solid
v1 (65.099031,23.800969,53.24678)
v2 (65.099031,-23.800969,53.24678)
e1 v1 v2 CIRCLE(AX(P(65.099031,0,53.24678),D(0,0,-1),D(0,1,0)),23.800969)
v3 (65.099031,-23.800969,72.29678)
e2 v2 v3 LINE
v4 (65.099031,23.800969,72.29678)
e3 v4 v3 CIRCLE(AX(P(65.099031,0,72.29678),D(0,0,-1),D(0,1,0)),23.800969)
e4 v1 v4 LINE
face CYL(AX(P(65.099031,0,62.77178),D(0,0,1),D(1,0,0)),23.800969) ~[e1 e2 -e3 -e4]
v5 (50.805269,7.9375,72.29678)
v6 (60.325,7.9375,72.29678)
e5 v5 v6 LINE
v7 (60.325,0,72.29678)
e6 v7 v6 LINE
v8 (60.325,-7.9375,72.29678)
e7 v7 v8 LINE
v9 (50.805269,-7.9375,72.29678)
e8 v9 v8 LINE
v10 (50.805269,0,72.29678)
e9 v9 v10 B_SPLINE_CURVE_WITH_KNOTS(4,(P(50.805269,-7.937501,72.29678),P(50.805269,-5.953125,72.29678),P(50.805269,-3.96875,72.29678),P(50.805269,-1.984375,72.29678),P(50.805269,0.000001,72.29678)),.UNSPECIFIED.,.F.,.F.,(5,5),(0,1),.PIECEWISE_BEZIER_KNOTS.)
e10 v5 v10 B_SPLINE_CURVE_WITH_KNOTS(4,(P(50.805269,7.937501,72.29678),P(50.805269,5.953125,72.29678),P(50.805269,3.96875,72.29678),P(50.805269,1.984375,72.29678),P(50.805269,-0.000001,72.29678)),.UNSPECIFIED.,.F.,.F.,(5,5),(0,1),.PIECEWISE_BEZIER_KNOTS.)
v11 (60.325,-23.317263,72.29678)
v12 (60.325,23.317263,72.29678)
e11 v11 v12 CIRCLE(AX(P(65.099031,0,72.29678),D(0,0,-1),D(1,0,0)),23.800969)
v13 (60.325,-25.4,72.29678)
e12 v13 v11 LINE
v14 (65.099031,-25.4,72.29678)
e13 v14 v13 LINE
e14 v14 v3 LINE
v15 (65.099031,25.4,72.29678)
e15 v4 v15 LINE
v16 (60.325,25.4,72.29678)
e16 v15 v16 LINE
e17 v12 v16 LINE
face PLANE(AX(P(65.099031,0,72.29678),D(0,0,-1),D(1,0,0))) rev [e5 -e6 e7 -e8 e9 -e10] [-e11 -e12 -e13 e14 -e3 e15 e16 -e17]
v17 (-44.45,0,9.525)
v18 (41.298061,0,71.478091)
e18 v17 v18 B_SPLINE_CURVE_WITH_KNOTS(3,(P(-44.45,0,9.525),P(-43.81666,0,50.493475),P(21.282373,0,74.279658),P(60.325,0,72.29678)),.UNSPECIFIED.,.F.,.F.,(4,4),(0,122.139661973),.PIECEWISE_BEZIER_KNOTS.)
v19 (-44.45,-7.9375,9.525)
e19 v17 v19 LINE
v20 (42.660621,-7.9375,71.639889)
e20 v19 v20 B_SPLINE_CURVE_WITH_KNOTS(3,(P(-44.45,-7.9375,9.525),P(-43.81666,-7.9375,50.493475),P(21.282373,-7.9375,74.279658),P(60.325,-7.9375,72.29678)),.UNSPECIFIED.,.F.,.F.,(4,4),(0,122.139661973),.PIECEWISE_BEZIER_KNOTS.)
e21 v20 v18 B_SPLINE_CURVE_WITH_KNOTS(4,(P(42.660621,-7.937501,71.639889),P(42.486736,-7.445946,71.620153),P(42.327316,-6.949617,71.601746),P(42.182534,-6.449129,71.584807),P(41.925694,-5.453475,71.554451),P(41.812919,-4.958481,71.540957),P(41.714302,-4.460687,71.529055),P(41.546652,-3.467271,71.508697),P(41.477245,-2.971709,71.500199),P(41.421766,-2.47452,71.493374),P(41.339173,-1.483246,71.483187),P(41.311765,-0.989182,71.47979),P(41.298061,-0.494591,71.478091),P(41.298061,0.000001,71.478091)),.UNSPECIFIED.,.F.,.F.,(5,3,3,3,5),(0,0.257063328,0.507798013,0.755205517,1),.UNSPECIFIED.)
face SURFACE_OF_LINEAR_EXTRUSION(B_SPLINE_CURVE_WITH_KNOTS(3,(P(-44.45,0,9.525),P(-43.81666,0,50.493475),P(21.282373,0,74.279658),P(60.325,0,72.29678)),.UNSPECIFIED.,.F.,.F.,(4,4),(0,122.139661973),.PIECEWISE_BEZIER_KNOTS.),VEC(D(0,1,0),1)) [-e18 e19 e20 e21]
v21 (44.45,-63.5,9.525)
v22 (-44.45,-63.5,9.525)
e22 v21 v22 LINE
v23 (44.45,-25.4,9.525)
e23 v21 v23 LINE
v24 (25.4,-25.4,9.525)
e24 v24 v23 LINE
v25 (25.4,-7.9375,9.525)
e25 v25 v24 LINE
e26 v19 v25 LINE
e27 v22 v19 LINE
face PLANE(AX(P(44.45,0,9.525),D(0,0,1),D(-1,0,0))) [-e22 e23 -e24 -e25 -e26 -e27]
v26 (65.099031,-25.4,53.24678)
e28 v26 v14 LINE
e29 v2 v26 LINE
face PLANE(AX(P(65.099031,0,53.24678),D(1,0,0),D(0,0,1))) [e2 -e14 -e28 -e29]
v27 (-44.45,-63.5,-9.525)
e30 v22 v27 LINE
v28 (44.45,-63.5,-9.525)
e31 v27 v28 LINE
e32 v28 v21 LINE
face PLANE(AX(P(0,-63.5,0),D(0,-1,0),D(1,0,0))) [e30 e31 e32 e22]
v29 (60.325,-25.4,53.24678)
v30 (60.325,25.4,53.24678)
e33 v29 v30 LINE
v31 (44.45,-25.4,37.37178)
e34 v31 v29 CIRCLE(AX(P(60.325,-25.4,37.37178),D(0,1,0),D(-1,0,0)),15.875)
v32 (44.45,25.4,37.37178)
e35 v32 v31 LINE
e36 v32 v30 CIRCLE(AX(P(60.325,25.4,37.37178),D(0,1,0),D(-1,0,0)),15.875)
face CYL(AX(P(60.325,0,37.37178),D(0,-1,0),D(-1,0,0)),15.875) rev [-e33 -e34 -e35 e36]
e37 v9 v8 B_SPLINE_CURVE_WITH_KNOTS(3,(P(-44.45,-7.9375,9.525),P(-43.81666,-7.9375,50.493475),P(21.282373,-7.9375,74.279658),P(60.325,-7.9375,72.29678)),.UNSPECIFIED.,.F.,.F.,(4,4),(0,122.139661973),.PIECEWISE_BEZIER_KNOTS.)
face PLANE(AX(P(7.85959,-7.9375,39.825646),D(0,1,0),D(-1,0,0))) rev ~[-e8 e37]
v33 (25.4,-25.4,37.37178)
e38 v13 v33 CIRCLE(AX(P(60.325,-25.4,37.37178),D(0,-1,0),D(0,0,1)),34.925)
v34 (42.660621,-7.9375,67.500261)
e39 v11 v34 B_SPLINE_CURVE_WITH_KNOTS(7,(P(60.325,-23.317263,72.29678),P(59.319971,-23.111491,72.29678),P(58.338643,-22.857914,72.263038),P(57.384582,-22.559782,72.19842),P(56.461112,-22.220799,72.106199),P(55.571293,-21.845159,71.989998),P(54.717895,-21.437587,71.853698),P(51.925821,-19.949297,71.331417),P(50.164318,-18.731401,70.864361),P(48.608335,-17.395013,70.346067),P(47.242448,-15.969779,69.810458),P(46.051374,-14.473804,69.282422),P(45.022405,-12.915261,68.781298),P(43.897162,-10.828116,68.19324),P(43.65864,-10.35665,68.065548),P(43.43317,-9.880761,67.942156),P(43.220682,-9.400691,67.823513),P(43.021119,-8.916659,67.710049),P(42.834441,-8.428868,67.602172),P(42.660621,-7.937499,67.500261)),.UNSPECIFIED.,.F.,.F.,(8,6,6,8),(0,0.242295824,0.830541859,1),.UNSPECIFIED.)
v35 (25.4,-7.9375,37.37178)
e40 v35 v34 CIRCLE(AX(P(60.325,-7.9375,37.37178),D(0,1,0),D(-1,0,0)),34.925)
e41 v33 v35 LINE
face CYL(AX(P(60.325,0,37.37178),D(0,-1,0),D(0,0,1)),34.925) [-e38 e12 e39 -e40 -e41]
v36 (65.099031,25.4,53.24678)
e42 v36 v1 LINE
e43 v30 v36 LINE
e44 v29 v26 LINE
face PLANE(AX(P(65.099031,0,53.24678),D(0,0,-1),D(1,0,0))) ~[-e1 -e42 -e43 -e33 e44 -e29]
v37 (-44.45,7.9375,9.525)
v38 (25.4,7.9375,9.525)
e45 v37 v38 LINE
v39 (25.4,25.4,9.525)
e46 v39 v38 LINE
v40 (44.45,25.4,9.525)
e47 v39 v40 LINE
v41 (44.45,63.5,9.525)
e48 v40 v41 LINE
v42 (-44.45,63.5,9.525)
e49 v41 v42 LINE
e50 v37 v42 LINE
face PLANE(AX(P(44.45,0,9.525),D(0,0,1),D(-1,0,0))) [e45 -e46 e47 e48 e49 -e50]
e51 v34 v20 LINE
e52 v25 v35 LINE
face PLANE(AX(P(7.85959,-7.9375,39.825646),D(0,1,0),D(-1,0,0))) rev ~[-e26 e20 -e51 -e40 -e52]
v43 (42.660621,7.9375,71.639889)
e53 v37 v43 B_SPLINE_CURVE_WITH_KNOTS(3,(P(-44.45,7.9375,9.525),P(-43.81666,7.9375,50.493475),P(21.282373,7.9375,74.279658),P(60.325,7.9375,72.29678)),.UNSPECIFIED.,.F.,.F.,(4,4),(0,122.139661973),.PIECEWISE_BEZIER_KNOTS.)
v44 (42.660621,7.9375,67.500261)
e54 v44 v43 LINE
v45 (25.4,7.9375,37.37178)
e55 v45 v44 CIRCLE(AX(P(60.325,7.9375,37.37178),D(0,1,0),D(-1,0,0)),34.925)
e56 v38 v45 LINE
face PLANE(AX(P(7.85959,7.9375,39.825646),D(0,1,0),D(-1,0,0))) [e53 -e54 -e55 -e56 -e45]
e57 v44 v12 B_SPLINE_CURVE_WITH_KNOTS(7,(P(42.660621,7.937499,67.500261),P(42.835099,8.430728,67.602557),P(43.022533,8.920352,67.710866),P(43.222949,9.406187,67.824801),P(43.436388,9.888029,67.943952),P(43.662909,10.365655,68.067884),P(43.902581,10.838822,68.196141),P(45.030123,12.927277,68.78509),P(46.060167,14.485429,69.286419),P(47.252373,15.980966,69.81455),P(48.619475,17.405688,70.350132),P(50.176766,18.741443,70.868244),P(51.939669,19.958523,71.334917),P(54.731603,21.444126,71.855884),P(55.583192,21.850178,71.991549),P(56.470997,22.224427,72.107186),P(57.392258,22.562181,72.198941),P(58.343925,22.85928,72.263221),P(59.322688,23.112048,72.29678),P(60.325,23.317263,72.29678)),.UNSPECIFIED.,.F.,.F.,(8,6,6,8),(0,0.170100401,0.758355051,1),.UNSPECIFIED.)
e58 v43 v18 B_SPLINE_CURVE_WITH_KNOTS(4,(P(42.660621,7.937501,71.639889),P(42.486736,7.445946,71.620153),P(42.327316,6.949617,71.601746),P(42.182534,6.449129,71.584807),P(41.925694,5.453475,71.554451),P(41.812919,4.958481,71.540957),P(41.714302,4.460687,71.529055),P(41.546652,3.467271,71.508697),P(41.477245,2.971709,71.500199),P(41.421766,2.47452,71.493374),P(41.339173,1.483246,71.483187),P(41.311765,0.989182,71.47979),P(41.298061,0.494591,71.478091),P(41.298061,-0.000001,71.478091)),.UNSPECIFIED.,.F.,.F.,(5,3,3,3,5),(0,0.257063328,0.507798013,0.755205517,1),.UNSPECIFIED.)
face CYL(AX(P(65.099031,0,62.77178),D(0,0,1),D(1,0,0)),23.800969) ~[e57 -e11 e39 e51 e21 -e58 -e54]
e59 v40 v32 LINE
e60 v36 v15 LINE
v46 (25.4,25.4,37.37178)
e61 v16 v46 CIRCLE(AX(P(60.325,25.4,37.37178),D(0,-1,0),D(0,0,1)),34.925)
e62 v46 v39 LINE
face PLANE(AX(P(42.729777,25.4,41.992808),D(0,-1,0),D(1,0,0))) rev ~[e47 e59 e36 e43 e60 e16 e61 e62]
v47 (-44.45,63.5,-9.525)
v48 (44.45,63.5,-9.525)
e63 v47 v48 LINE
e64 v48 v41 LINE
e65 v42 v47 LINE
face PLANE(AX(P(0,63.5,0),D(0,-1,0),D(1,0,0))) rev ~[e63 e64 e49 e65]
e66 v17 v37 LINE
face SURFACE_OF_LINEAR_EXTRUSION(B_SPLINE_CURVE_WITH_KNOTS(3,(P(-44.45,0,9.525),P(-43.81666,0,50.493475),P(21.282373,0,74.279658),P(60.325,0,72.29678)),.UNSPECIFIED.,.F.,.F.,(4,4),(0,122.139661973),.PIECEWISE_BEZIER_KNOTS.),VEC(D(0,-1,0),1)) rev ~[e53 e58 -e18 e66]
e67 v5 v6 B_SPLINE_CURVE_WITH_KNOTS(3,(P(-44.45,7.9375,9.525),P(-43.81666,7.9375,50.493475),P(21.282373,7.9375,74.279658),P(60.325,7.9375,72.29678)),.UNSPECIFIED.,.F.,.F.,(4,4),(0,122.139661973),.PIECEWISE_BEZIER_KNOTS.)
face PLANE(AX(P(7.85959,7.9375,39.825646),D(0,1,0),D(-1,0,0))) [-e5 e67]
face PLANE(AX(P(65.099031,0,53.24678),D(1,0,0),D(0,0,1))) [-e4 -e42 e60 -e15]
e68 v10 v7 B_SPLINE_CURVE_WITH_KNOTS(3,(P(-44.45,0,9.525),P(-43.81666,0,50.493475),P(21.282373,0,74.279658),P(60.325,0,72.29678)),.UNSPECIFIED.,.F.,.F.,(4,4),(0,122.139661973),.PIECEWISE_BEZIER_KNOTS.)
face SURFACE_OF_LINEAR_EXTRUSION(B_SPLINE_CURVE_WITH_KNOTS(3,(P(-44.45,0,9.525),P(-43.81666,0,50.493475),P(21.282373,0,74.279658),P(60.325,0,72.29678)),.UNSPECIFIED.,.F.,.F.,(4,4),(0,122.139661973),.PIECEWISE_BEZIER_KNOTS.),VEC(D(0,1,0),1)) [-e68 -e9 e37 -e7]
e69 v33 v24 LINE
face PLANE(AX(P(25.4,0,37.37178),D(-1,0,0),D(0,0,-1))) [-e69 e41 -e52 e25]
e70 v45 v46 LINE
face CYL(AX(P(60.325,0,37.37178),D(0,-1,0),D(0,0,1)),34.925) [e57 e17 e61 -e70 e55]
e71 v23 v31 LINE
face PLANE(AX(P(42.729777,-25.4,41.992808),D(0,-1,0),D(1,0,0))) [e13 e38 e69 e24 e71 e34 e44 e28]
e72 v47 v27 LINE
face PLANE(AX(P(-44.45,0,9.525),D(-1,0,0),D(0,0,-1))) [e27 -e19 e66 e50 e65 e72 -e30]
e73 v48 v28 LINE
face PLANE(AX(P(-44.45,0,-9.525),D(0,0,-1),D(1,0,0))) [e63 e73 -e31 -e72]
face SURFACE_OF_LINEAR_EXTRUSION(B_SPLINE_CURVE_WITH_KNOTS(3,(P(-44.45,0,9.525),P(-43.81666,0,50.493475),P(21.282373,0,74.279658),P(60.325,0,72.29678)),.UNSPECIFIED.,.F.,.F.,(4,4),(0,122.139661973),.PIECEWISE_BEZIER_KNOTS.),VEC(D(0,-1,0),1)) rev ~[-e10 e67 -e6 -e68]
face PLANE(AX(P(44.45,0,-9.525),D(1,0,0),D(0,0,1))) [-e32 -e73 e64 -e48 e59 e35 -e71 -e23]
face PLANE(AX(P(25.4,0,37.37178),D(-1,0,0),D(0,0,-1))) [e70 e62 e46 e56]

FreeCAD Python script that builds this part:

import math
import FreeCAD as App
import Part
import Sketcher
Q = App.Units.Quantity

doc = App.newDocument("Part")
body = doc.addObject("PartDesign::Body", "Body")

# Sketch on XZ plane
sketch1 = body.newObject("Sketcher::SketchObject", "Sketch")
sketch1.AttachmentSupport = (doc.getObject("XZ_Plane"), [""])
sketch1.MapMode = "FlatFace"
sketch1.addGeometry([
    Part.LineSegment(App.Vector(-44, 10, 0), App.Vector(-44, -10, 0)),
    Part.LineSegment(App.Vector(-44, -10, 0), App.Vector(44, -10, 0)),
    Part.LineSegment(App.Vector(44, -10, 0), App.Vector(44, 10, 0)),
    Part.LineSegment(App.Vector(44, 10, 0), App.Vector(-44, 10, 0)),
], False)
sketch1.addConstraint([
    Sketcher.Constraint("Coincident", 0, 2, 1, 1),
    Sketcher.Constraint("Coincident", 1, 2, 2, 1),
    Sketcher.Constraint("Coincident", 2, 2, 3, 1),
    Sketcher.Constraint("Coincident", 3, 2, 0, 1),
    Sketcher.Constraint("Vertical", 0),
    Sketcher.Constraint("Horizontal", 1),
    Sketcher.Constraint("Vertical", 2),
    Sketcher.Constraint("Horizontal", 3),
    Sketcher.Constraint("Symmetric", 0, 2, 2, 2, -1, 1),
    Sketcher.Constraint("DistanceX", 1, 1, 1, 2, Q("3.5 in")),
    Sketcher.Constraint("DistanceY", 0, 2, 0, 1, Q("0.75 in")),
])
pad1 = body.newObject("PartDesign::Pad", "Pad")
pad1.Profile = sketch1
pad1.Length = Q("5 in")
pad1.Midplane = True

# Sketch on XZ plane
sketch2 = body.newObject("Sketcher::SketchObject", "Sketch001")
sketch2.AttachmentSupport = (doc.getObject("XZ_Plane"), [""])
sketch2.MapMode = "FlatFace"
sketch2.addGeometry([
    Part.LineSegment(App.Vector(25.4, 37.4, 0), App.Vector(25.4, 9.5, 0)),  # 0
    Part.LineSegment(App.Vector(25.4, 9.5, 0), App.Vector(44.5, 9.5, 0)),  # 1
    Part.LineSegment(App.Vector(44.5, 9.5, 0), App.Vector(44.5, 37.4, 0)),  # 2
    Part.ArcOfCircle(Part.Circle(App.Vector(60.3, 37.4, 0), App.Vector(0, 0, 1), 15.9), math.radians(90), math.radians(180)),  # 3
    Part.LineSegment(App.Vector(60.3, 53.2, 0), App.Vector(65.1, 53.2, 0)),  # 4
    Part.LineSegment(App.Vector(65.1, 53.2, 0), App.Vector(65.1, 72.3, 0)),  # 5
    Part.LineSegment(App.Vector(65.1, 72.3, 0), App.Vector(60.3, 72.3, 0)),  # 6
    Part.ArcOfCircle(Part.Circle(App.Vector(60.3, 37.4, 0), App.Vector(0, 0, 1), 34.9), math.radians(90), math.radians(180)),  # 7
], False)
sketch2.addConstraint([
    Sketcher.Constraint("Coincident", 0, 2, 1, 1),
    Sketcher.Constraint("Coincident", 1, 2, 2, 1),
    Sketcher.Constraint("Tangent", 2, 2, 3, 2),
    Sketcher.Constraint("Tangent", 3, 1, 4, 1),
    Sketcher.Constraint("Coincident", 4, 2, 5, 1),
    Sketcher.Constraint("Coincident", 5, 2, 6, 1),
    Sketcher.Constraint("Tangent", 6, 2, 7, 1),
    Sketcher.Constraint("Tangent", 7, 2, 0, 1),
    Sketcher.Constraint("Vertical", 0),
    Sketcher.Constraint("Horizontal", 1),
    Sketcher.Constraint("Vertical", 2),
    Sketcher.Constraint("Horizontal", 4),
    Sketcher.Constraint("Vertical", 5),
    Sketcher.Constraint("Horizontal", 6),
    Sketcher.Constraint("Coincident", 7, 3, 3, 3),
    Sketcher.Constraint("DistanceX", -1, 1, 0, 2, Q("1 in")),
    Sketcher.Constraint("Radius", 3, Q("0.625 in")),
    Sketcher.Constraint("Radius", 7, Q("1.375 in")),
    Sketcher.Constraint("DistanceY", -1, 1, 0, 2, Q("0.375 in")),
    Sketcher.Constraint("DistanceX", 4, 1, 4, 2, 4.774031),
    Sketcher.Constraint("DistanceY", 0, 2, 0, 1, 27.84678),
])
pad2 = body.newObject("PartDesign::Pad", "Pad001")
pad2.Profile = sketch2
pad2.Length = Q("2 in")
pad2.Midplane = True

# Sketch on XZ plane
sketch3 = body.newObject("Sketcher::SketchObject", "Sketch002")
sketch3.AttachmentSupport = (doc.getObject("XZ_Plane"), [""])
sketch3.MapMode = "FlatFace"
sketch3.addGeometry([
    Part.BSplineCurve([App.Vector(-44.45, 9.525, 0), App.Vector(-43.81666, 50.493475, 0), App.Vector(21.282373, 74.279658, 0), App.Vector(60.325, 72.29678, 0)], [4, 4], [0, 122.139661973], False, 3, [1, 1, 1, 1], False),
    Part.LineSegment(App.Vector(-44.45, 9.525, 0), App.Vector(25.4, 9.525, 0)),
    Part.LineSegment(App.Vector(25.4, 9.525, 0), App.Vector(25.4, 37.37178, 0)),
    Part.ArcOfCircle(Part.Circle(App.Vector(60.325, 37.37178, 0), App.Vector(0, 0, 1), 34.925), math.radians(90), math.radians(180)),
], False)
sketch3.addConstraint([
    Sketcher.Constraint("Block", 0),
    Sketcher.Constraint("Coincident", 0, 1, 1, 1),
    Sketcher.Constraint("Coincident", 1, 2, 2, 1),
    Sketcher.Constraint("Tangent", 2, 2, 3, 2),
    Sketcher.Constraint("Coincident", 3, 1, 0, 2),
    Sketcher.Constraint("Horizontal", 1),
    Sketcher.Constraint("Vertical", 2),
    Sketcher.Constraint("DistanceX", -1, 1, 1, 2, Q("1 in")),
    Sketcher.Constraint("Radius", 3, Q("1.375 in")),
])
pad3 = body.newObject("PartDesign::Pad", "Pad002")
pad3.Profile = sketch3
pad3.Length = Q("0.625 in")
pad3.Midplane = True

# Sketch on XZ plane
sketch4 = body.newObject("Sketcher::SketchObject", "Sketch003")
sketch4.AttachmentSupport = (doc.getObject("XZ_Plane"), [""])
sketch4.MapMode = "FlatFace"
sketch4.addGeometry([
    Part.LineSegment(App.Vector(65, 72, 0), App.Vector(65, 53, 0)),
    Part.LineSegment(App.Vector(65, 53, 0), App.Vector(89, 53, 0)),
    Part.LineSegment(App.Vector(89, 53, 0), App.Vector(89, 72, 0)),
    Part.LineSegment(App.Vector(89, 72, 0), App.Vector(65, 72, 0)),
], False)
sketch4.addGeometry(Part.LineSegment(App.Vector(65, 72, 0), App.Vector(65, 53, 0)), True)  # axis
sketch4.addConstraint([
    Sketcher.Constraint("Coincident", 0, 2, 1, 1),
    Sketcher.Constraint("Coincident", 1, 2, 2, 1),
    Sketcher.Constraint("Coincident", 2, 2, 3, 1),
    Sketcher.Constraint("Coincident", 3, 2, 0, 1),
    Sketcher.Constraint("Vertical", 0),
    Sketcher.Constraint("Horizontal", 1),
    Sketcher.Constraint("Vertical", 2),
    Sketcher.Constraint("Horizontal", 3),
    Sketcher.Constraint("Vertical", 4),
    Sketcher.Constraint("Coincident", 4, 1, 3, 2),
    Sketcher.Constraint("Horizontal", 1, 2, 4, 2),
    Sketcher.Constraint("DistanceY", 0, 2, 0, 1, Q("0.75 in")),
    Sketcher.Constraint("DistanceX", -1, 1, 1, 2, Q("3.5 in")),
    Sketcher.Constraint("DistanceX", 1, 1, 1, 2, 23.800969),
    Sketcher.Constraint("DistanceY", -1, 1, 0, 2, 53.24678),
])
revolution = body.newObject("PartDesign::Revolution", "Revolution")
revolution.Profile = sketch4
revolution.ReferenceAxis = (sketch4, ["Axis0"])
revolution.Angle = 360

doc.recompute()
